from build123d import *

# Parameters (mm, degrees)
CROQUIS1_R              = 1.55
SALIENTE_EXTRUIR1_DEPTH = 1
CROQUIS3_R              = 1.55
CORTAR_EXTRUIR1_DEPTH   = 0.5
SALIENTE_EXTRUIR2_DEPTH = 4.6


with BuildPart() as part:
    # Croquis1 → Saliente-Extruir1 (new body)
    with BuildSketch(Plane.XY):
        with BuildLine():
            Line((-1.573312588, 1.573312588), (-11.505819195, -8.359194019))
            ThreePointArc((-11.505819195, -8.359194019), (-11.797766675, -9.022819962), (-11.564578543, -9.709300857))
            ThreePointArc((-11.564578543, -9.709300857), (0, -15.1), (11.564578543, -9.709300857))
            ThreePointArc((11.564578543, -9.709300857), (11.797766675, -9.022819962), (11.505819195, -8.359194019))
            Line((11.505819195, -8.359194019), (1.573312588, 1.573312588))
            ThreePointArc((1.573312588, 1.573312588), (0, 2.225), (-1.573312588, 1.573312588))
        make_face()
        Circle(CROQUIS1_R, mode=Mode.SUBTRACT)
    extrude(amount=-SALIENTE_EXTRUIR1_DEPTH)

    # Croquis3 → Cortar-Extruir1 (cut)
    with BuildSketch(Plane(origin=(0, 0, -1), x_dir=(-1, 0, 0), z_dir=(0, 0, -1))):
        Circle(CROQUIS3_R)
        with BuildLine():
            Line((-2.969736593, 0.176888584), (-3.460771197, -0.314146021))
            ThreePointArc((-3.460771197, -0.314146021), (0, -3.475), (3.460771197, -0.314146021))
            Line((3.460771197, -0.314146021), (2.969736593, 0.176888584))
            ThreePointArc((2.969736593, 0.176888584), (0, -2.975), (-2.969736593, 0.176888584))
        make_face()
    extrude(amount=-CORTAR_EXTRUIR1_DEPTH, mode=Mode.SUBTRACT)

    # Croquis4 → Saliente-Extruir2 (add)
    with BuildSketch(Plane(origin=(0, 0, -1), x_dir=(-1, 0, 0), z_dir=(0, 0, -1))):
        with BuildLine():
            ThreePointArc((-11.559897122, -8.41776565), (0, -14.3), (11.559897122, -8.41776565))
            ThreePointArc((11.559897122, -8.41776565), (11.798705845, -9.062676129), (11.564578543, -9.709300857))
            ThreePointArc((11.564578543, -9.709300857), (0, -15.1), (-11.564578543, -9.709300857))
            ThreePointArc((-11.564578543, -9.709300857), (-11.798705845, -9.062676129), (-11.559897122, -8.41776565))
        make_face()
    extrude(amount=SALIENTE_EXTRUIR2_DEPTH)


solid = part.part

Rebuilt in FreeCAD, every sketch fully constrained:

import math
import FreeCAD as App
import Part
import Sketcher
Q = App.Units.Quantity

doc = App.newDocument("Part")
body = doc.addObject("PartDesign::Body", "Body")

sketch1 = doc.addObject("Sketcher::SketchObject", "Sketch")
body.addObject(sketch1)
sketch1.AttachmentSupport = (doc.XY_Plane, [""])
sketch1.MapMode = "FlatFace"
sketch1.addGeometry(Part.LineSegment(App.Vector(-1.573313, 1.573313, 0), App.Vector(-11.505819, -8.359194, 0)), False)
sketch1.addGeometry(Part.ArcOfCircle(Part.Circle(App.Vector(-10.798712, -9.066301, 0), App.Vector(0, 0, 1), 1), math.radians(135), math.radians(220.015892)), False)
sketch1.addGeometry(Part.ArcOfCircle(Part.Circle(App.Vector(0, 0, 0), App.Vector(0, 0, 1), 15.1), math.radians(-139.984108), math.radians(-40.015892)), False)
sketch1.addGeometry(Part.ArcOfCircle(Part.Circle(App.Vector(10.798712, -9.066301, 0), App.Vector(0, 0, 1), 1), math.radians(-40.015892), math.radians(45)), False)
sketch1.addGeometry(Part.LineSegment(App.Vector(11.505819, -8.359194, 0), App.Vector(1.573313, 1.573313, 0)), False)
sketch1.addGeometry(Part.ArcOfCircle(Part.Circle(App.Vector(0, 0, 0), App.Vector(0, 0, 1), 2.225), math.radians(45), math.radians(135)), False)
sketch1.addGeometry(Part.Circle(App.Vector(0, 0, 0), App.Vector(0, 0, 1), 1.55), False)
sketch1.addConstraint(Sketcher.Constraint("Tangent", 0, 2, 1, 1))
sketch1.addConstraint(Sketcher.Constraint("Tangent", 1, 2, 2, 1))
sketch1.addConstraint(Sketcher.Constraint("Tangent", 2, 2, 3, 1))
sketch1.addConstraint(Sketcher.Constraint("Tangent", 3, 2, 4, 1))
sketch1.addConstraint(Sketcher.Constraint("Tangent", 4, 2, 5, 1))
sketch1.addConstraint(Sketcher.Constraint("Tangent", 5, 2, 0, 1))
sketch1.addConstraint(Sketcher.Constraint("Coincident", 2, 3, -1, 1))
sketch1.addConstraint(Sketcher.Constraint("Coincident", 5, 3, -1, 1))
sketch1.addConstraint(Sketcher.Constraint("Coincident", 6, 3, -1, 1))
sketch1.addConstraint(Sketcher.Constraint("Equal", 1, 3))
sketch1.addConstraint(Sketcher.Constraint("Perpendicular", 0, 4))
sketch1.addConstraint(Sketcher.Constraint("Horizontal", 1, 3, 3, 3))
sketch1.addConstraint(Sketcher.Constraint("Radius", 1, Q("1 mm")))
sketch1.addConstraint(Sketcher.Constraint("Diameter", 6, Q("3.1 mm")))
sketch1.addConstraint(Sketcher.Constraint("Radius", 2, Q("15.1 mm")))
sketch1.addConstraint(Sketcher.Constraint("Radius", 5, Q("2.225 mm")))
pad1 = doc.addObject("PartDesign::Pad", "Pad")
body.addObject(pad1)
pad1.Profile = sketch1
pad1.Length = 1
pad1.Reversed = True

sketch2 = doc.addObject("Sketcher::SketchObject", "Sketch001")
body.addObject(sketch2)
sketch2.AttachmentSupport = (doc.XY_Plane, [""])
sketch2.MapMode = "FlatFace"
sketch2.AttachmentOffset = App.Placement(App.Vector(0, 0, -1), App.Rotation())
sketch2.addGeometry(Part.Circle(App.Vector(0, 0, 0), App.Vector(0, 0, 1), 1.55), False)
sketch2.addGeometry(Part.LineSegment(App.Vector(2.969737, 0.176889, 0), App.Vector(3.460771, -0.314146, 0)), False)
sketch2.addGeometry(Part.ArcOfCircle(Part.Circle(App.Vector(0, 0, 0), App.Vector(0, 0, 1), 3.475), math.radians(-174.813281), math.radians(-5.186719)), False)
sketch2.addGeometry(Part.LineSegment(App.Vector(-3.460771, -0.314146, 0), App.Vector(-2.969737, 0.176889, 0)), False)
sketch2.addGeometry(Part.ArcOfCircle(Part.Circle(App.Vector(0, 0, 0), App.Vector(0, 0, 1), 2.975), math.radians(176.591277), math.radians(363.408723)), False)
sketch2.addConstraint(Sketcher.Constraint("Coincident", 1, 2, 2, 2))
sketch2.addConstraint(Sketcher.Constraint("Coincident", 2, 1, 3, 1))
sketch2.addConstraint(Sketcher.Constraint("Coincident", 3, 2, 4, 1))
sketch2.addConstraint(Sketcher.Constraint("Coincident", 4, 2, 1, 1))
sketch2.addConstraint(Sketcher.Constraint("Coincident", 0, 3, -1, 1))
sketch2.addConstraint(Sketcher.Constraint("Coincident", 2, 3, -1, 1))
sketch2.addConstraint(Sketcher.Constraint("Coincident", 4, 3, -1, 1))
sketch2.addConstraint(Sketcher.Constraint("Perpendicular", 1, 3))
sketch2.addConstraint(Sketcher.Constraint("Horizontal", 1, 2, 2, 1))
sketch2.addConstraint(Sketcher.Constraint("Horizontal", 3, 2, 4, 2))
sketch2.addConstraint(Sketcher.Constraint("Diameter", 0, Q("3.1 mm")))
sketch2.addConstraint(Sketcher.Constraint("Radius", 2, Q("3.475 mm")))
sketch2.addConstraint(Sketcher.Constraint("Radius", 4, Q("2.975 mm")))
sketch2.addConstraint(Sketcher.Constraint("DistanceX", -1, 1, 1, 2, Q("3.460771 mm")))
pocket1 = doc.addObject("PartDesign::Pocket", "Pocket")
body.addObject(pocket1)
pocket1.Profile = sketch2
pocket1.Length = 0.5
pocket1.Reversed = True

sketch3 = doc.addObject("Sketcher::SketchObject", "Sketch002")
body.addObject(sketch3)
sketch3.AttachmentSupport = (doc.XY_Plane, [""])
sketch3.MapMode = "FlatFace"
sketch3.AttachmentOffset = App.Placement(App.Vector(0, 0, -1), App.Rotation())
sketch3.addGeometry(Part.ArcOfCircle(Part.Circle(App.Vector(0, 0, 0), App.Vector(0, 0, 1), 14.3), math.radians(-143.938383), math.radians(-36.061617)), False)
sketch3.addGeometry(Part.ArcOfCircle(Part.Circle(App.Vector(10.798712, -9.066301, 0), App.Vector(0, 0, 1), 1), math.radians(-40.015892), math.radians(40.431249)), False)
sketch3.addGeometry(Part.ArcOfCircle(Part.Circle(App.Vector(0, 0, 0), App.Vector(0, 0, 1), 15.1), math.radians(-139.984108), math.radians(-40.015892)), False)
sketch3.addGeometry(Part.ArcOfCircle(Part.Circle(App.Vector(-10.798712, -9.066301, 0), App.Vector(0, 0, 1), 1), math.radians(139.568751), math.radians(220.015892)), False)
sketch3.addConstraint(Sketcher.Constraint("Coincident", 0, 2, 1, 2))
sketch3.addConstraint(Sketcher.Constraint("Tangent", 1, 1, 2, 2))
sketch3.addConstraint(Sketcher.Constraint("Tangent", 2, 1, 3, 2))
sketch3.addConstraint(Sketcher.Constraint("Coincident", 3, 1, 0, 1))
sketch3.addConstraint(Sketcher.Constraint("Coincident", 0, 3, -1, 1))
sketch3.addConstraint(Sketcher.Constraint("Coincident", 2, 3, -1, 1))
sketch3.addConstraint(Sketcher.Constraint("Equal", 1, 3))
sketch3.addConstraint(Sketcher.Constraint("Horizontal", 1, 3, 3, 3))
sketch3.addConstraint(Sketcher.Constraint("Radius", 1, Q("1 mm")))
sketch3.addConstraint(Sketcher.Constraint("Radius", 0, Q("14.3 mm")))
sketch3.addConstraint(Sketcher.Constraint("Radius", 2, Q("15.1 mm")))
sketch3.addConstraint(Sketcher.Constraint("DistanceY", 1, 1, 1, 3, Q("0.643 mm")))
pad2 = doc.addObject("PartDesign::Pad", "Pad001")
body.addObject(pad2)
pad2.Profile = sketch3
pad2.Length = 4.6
pad2.Reversed = True

doc.recompute()
